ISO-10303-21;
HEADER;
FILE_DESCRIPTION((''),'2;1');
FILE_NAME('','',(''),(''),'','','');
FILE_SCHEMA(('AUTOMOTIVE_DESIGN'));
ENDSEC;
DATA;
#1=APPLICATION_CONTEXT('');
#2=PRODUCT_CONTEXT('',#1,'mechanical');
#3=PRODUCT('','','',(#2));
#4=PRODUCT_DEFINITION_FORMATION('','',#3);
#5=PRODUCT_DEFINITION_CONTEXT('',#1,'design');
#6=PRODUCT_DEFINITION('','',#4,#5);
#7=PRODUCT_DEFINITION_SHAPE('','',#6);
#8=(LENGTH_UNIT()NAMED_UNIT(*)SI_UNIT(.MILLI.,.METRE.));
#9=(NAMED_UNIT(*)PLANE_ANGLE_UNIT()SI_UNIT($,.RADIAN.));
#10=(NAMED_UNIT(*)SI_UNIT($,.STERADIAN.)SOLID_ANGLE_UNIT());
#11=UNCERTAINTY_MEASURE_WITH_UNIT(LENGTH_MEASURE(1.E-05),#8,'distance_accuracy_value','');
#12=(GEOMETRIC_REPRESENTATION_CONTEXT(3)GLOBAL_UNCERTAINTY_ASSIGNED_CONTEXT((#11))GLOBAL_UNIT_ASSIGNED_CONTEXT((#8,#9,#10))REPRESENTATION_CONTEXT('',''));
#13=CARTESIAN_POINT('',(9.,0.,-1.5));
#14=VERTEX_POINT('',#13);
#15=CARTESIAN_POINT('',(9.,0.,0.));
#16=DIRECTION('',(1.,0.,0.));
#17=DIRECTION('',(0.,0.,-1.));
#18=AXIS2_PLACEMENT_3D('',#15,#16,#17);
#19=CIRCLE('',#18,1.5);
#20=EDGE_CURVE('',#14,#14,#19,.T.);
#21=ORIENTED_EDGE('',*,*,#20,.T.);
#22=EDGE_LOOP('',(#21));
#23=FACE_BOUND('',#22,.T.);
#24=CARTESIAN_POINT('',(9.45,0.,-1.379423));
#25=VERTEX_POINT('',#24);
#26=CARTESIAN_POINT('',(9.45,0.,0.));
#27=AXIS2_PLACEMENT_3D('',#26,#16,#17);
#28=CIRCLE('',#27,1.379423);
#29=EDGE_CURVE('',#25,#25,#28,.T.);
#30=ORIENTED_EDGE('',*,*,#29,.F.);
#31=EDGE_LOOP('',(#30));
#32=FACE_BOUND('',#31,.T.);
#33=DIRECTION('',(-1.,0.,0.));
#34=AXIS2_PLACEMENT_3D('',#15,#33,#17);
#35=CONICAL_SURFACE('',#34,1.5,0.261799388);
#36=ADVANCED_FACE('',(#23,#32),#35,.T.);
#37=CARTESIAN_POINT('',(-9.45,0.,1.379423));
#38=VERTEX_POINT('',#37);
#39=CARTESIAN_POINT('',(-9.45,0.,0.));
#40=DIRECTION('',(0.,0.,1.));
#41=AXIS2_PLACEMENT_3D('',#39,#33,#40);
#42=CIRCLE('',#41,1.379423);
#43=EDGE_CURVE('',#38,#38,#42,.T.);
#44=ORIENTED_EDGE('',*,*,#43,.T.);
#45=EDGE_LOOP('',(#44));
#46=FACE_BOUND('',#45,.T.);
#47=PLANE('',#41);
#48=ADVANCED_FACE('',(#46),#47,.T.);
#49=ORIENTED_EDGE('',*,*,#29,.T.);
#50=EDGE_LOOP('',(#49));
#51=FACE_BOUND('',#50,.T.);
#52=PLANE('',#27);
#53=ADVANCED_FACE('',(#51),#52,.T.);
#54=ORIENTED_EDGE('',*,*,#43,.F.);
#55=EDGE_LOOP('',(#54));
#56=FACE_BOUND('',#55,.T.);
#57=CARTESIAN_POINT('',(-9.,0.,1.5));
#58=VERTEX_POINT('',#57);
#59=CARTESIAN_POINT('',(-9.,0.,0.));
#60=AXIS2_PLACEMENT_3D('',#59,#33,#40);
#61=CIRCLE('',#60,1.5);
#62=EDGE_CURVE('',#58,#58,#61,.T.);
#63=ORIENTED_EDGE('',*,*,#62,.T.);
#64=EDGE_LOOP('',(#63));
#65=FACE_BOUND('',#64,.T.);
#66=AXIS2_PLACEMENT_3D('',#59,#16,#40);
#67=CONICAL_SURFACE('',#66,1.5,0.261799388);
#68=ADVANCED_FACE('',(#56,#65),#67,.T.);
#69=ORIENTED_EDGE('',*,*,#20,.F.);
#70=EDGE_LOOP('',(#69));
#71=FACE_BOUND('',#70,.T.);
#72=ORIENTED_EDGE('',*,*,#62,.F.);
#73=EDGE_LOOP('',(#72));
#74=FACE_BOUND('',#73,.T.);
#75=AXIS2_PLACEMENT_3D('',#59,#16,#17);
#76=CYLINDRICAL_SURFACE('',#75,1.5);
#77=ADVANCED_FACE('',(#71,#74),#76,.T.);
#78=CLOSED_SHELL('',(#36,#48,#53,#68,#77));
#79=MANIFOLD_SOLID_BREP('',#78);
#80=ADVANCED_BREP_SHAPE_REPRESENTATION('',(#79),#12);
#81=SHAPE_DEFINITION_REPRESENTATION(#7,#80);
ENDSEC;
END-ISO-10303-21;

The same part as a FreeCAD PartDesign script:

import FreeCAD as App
import Part
import Sketcher

V = App.Vector
Q = App.Units.Quantity

doc = App.newDocument("Part")
body = doc.addObject("PartDesign::Body", "Body")

# Sketch on YZ plane
sketch1 = body.newObject("Sketcher::SketchObject", "Sketch")
sketch1.AttachmentSupport = (doc.getObject("YZ_Plane"), [""])
sketch1.MapMode = "FlatFace"
sketch1.addGeometry(Part.Circle(V(0, 0, 0), V(0, 0, 1), 1.5), False)
sketch1.addConstraint([
    Sketcher.Constraint("Coincident", 0, 3, -1, 1),
    Sketcher.Constraint("Diameter", 0, Q("3 mm")),
])
pad1 = body.newObject("PartDesign::Pad", "Pad")
pad1.Profile = sketch1
pad1.Type = "TwoLengths"
pad1.Length = 9
pad1.Length2 = 9

# Sketch on YZ plane
sketch2 = body.newObject("Sketcher::SketchObject", "Sketch001")
sketch2.AttachmentSupport = (doc.getObject("YZ_Plane"), [""])
sketch2.MapMode = "FlatFace"
sketch2.AttachmentOffset = App.Placement(V(0, 0, 9), App.Rotation())
sketch2.addGeometry(Part.Circle(V(0, 0, 0), V(0, 0, 1), 1.5), False)
sketch2.addConstraint([
    Sketcher.Constraint("Coincident", 0, 3, -1, 1),
    Sketcher.Constraint("Diameter", 0, Q("3 mm")),
])
pad2 = body.newObject("PartDesign::Pad", "Pad001")
pad2.Profile = sketch2
pad2.Length = 0.45
pad2.TaperAngle = -15

# Sketch on YZ plane
sketch3 = body.newObject("Sketcher::SketchObject", "Sketch002")
sketch3.AttachmentSupport = (doc.getObject("YZ_Plane"), [""])
sketch3.MapMode = "FlatFace"
sketch3.AttachmentOffset = App.Placement(V(0, 0, -9), App.Rotation())
sketch3.addGeometry(Part.Circle(V(0, 0, 0), V(0, 0, 1), 1.5), False)
sketch3.addConstraint([
    Sketcher.Constraint("Coincident", 0, 3, -1, 1),
    Sketcher.Constraint("Diameter", 0, Q("3 mm")),
])
pad3 = body.newObject("PartDesign::Pad", "Pad002")
pad3.Profile = sketch3
pad3.Length = 0.45
pad3.Reversed = True
pad3.TaperAngle = -15

doc.recompute()
